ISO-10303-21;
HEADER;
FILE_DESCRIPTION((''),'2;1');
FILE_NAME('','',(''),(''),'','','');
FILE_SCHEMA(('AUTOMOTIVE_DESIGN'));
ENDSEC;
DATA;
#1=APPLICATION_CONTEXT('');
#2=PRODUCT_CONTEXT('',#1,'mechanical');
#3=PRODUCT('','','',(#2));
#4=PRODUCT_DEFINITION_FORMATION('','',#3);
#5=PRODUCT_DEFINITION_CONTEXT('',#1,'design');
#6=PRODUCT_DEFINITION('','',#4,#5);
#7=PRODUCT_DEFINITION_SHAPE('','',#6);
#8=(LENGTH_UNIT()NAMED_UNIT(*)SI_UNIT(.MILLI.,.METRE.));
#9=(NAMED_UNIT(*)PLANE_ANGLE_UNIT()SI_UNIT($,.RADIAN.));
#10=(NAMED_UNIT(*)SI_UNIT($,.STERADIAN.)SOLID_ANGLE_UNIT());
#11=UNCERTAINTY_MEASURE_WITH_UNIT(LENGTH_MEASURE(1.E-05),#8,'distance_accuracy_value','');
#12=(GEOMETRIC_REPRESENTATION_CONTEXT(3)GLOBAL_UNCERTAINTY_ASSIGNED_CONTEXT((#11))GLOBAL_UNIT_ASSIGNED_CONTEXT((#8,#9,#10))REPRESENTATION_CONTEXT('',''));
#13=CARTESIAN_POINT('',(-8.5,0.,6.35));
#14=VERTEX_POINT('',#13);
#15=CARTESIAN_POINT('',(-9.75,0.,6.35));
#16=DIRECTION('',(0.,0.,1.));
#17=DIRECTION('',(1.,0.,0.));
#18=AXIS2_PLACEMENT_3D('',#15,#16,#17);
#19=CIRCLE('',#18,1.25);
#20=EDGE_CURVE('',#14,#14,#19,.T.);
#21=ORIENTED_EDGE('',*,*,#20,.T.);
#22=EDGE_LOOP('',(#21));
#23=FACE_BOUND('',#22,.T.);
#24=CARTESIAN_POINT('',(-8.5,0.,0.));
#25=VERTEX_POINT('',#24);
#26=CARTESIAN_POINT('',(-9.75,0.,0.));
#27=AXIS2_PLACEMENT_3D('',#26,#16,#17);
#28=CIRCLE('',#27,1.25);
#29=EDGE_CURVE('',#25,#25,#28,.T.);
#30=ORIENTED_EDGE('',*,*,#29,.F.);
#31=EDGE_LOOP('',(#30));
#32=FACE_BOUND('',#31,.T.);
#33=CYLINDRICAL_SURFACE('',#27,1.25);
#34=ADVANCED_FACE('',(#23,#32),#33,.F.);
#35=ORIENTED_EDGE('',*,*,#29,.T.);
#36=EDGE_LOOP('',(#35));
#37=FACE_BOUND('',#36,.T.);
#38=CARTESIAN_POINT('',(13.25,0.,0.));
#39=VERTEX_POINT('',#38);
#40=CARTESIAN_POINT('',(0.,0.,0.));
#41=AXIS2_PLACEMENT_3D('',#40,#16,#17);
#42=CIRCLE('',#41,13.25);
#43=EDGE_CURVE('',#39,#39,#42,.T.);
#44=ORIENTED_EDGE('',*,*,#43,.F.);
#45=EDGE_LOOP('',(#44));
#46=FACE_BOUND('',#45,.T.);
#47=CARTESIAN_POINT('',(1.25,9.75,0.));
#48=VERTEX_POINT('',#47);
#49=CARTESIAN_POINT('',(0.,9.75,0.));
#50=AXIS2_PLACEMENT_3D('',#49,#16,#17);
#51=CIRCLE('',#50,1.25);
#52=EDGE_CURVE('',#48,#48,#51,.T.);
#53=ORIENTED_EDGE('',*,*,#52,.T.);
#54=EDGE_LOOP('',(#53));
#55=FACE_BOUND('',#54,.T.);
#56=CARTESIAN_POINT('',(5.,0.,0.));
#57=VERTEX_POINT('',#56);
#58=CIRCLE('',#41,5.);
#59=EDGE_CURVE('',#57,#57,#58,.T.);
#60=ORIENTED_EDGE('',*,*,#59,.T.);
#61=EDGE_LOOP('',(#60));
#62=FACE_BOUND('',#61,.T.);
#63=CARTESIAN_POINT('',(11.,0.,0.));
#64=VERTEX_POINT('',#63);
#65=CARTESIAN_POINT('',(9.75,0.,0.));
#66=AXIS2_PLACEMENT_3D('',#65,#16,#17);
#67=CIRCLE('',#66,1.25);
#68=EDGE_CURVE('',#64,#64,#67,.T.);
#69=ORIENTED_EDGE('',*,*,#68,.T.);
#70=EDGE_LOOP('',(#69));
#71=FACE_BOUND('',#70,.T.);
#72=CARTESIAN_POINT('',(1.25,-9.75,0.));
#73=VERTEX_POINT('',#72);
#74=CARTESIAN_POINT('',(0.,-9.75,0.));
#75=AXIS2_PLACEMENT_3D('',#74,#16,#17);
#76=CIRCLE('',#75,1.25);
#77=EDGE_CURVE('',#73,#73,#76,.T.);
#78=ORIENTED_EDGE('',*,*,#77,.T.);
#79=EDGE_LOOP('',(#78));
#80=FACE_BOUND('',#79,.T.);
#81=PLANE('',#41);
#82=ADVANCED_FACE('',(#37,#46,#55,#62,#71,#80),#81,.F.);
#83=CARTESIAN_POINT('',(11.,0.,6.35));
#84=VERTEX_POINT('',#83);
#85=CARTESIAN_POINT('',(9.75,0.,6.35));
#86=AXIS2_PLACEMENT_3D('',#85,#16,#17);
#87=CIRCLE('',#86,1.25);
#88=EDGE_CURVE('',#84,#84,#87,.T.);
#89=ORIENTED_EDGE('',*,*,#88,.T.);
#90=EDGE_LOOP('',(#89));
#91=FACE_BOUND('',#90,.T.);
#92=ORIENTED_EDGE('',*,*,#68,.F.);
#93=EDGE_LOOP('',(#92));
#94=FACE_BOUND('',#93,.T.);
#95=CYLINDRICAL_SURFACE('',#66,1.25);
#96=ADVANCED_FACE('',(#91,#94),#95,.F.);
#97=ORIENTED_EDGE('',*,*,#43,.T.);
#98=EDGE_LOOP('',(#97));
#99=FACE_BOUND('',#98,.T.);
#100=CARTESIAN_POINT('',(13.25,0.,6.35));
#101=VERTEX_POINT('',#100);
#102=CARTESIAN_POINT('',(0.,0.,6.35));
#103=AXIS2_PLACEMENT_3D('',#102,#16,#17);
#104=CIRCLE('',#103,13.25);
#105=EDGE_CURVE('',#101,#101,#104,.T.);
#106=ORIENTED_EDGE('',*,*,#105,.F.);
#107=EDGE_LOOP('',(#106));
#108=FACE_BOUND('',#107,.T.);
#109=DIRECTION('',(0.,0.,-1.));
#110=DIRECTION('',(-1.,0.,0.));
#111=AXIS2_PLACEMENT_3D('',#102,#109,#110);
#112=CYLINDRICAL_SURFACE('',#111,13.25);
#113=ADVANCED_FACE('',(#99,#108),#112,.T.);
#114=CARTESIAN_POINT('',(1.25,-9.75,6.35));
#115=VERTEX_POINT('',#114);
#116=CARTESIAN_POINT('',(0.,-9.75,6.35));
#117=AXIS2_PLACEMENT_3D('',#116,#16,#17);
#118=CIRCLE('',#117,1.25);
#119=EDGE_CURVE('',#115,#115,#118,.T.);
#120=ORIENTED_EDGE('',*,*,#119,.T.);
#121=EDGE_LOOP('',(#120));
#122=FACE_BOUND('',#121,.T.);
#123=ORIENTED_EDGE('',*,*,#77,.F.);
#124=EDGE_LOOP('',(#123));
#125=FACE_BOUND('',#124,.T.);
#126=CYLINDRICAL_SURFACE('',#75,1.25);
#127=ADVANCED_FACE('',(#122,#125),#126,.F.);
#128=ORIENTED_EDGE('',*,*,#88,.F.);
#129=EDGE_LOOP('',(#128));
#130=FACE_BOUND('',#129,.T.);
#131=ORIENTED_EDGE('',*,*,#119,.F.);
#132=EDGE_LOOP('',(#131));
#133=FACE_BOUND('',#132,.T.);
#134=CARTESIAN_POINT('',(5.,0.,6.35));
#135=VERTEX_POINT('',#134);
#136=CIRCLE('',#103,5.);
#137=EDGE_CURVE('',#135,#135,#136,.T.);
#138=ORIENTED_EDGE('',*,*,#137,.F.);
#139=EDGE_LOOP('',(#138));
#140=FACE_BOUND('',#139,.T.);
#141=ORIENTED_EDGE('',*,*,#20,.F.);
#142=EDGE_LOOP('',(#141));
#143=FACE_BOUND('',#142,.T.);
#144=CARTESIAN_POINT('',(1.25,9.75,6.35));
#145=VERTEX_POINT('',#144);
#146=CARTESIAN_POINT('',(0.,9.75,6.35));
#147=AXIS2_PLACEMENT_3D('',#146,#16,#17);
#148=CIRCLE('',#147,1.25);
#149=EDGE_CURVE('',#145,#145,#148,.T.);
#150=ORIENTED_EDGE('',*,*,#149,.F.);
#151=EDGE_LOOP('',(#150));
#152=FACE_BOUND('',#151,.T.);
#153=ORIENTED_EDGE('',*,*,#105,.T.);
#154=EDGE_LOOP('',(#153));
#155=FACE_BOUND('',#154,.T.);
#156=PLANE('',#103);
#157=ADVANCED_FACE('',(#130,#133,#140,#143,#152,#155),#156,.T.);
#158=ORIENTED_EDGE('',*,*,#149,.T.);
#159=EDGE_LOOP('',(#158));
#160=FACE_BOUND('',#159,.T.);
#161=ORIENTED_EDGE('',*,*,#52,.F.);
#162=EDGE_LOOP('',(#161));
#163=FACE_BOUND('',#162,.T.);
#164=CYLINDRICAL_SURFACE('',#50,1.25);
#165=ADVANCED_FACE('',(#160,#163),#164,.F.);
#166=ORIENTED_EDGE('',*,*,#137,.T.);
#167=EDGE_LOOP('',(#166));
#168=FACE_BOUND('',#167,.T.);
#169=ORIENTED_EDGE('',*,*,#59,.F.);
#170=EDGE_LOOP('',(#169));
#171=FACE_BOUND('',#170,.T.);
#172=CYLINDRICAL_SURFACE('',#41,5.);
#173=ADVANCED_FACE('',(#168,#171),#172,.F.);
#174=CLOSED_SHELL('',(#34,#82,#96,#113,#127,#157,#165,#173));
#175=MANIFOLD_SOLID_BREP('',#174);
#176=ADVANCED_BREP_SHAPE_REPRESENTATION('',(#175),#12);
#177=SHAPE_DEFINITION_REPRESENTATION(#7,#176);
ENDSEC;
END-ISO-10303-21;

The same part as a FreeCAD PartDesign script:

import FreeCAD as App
import Part
import Sketcher

V = App.Vector

doc = App.newDocument("Part")
body = doc.addObject("PartDesign::Body", "Body")

sketch1 = doc.addObject("Sketcher::SketchObject", "Sketch")
body.addObject(sketch1)
sketch1.AttachmentSupport = (doc.XY_Plane, [""])
sketch1.MapMode = "FlatFace"
sketch1.addGeometry(Part.Circle(V(0, 0, 0), V(0, 0, 1), 13), False)
sketch1.addConstraint(Sketcher.Constraint("Coincident", 0, 3, -1, 1))
sketch1.addConstraint(Sketcher.Constraint("Diameter", 0, 26.5))
pad1 = doc.addObject("PartDesign::Pad", "Pad")
body.addObject(pad1)
pad1.Profile = sketch1
pad1.Length = 6.35

sketch2 = doc.addObject("Sketcher::SketchObject", "Sketch001")
body.addObject(sketch2)
sketch2.AttachmentSupport = (doc.XY_Plane, [""])
sketch2.MapMode = "FlatFace"
sketch2.AttachmentOffset = App.Placement(V(0, 0, 6.35), App.Rotation())
sketch2.addGeometry(Part.Circle(V(0, 0, 0), V(0, 0, 1), 5), False)
sketch2.addGeometry(Part.Circle(V(0, 9.8, 0), V(0, 0, 1), 1.2), False)
sketch2.addGeometry(Part.Circle(V(9.8, 0, 0), V(0, 0, 1), 1.2), False)
sketch2.addGeometry(Part.Circle(V(0, -9.8, 0), V(0, 0, 1), 1.2), False)
sketch2.addGeometry(Part.Circle(V(-9.8, 0, 0), V(0, 0, 1), 1.2), False)
sketch2.addConstraint(Sketcher.Constraint("Coincident", 0, 3, -1, 1))
sketch2.addConstraint(Sketcher.Constraint("Equal", 1, 2))
sketch2.addConstraint(Sketcher.Constraint("Equal", 2, 3))
sketch2.addConstraint(Sketcher.Constraint("Equal", 3, 4))
sketch2.addConstraint(Sketcher.Constraint("Symmetric", 1, 3, 3, 3, -1, 1))
sketch2.addConstraint(Sketcher.Constraint("Symmetric", 2, 3, 4, 3, -1, 1))
sketch2.addConstraint(Sketcher.Constraint("PointOnObject", 1, 3, -2))
sketch2.addConstraint(Sketcher.Constraint("PointOnObject", 2, 3, -1))
sketch2.addConstraint(Sketcher.Constraint("Diameter", 0, 10.0))
sketch2.addConstraint(Sketcher.Constraint("Diameter", 1, 2.5))
sketch2.addConstraint(Sketcher.Constraint("DistanceY", 3, 3, 1, 3, 19.5))
sketch2.addConstraint(Sketcher.Constraint("DistanceX", 4, 3, 2, 3, 19.5))
pocket1 = doc.addObject("PartDesign::Pocket", "Pocket")
body.addObject(pocket1)
pocket1.Profile = sketch2
pocket1.Length = 6.35

doc.recompute()
